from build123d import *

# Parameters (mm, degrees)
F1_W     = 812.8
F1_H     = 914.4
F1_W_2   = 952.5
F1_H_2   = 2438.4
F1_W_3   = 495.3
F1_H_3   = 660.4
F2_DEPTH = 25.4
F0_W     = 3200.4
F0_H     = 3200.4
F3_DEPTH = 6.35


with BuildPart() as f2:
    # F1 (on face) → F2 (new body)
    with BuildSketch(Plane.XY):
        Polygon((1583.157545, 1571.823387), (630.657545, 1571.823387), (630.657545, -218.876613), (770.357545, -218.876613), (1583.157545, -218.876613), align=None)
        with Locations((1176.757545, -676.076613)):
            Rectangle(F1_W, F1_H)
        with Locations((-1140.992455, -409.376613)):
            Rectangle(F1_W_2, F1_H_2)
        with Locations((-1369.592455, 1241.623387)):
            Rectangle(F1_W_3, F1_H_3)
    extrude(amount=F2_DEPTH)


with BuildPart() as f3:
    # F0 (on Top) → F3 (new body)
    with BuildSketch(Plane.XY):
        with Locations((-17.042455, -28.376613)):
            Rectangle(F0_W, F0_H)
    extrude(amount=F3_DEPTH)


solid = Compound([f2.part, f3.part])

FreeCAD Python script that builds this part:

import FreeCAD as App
import Part
import Sketcher
Q = App.Units.Quantity

doc = App.newDocument("Part")
body = doc.addObject("PartDesign::Body", "Body")
body.AllowCompound = True

# Sketch on XY plane
sketch1 = body.newObject("Sketcher::SketchObject", "Sketch")
sketch1.AttachmentSupport = (doc.getObject("XY_Plane"), [""])
sketch1.MapMode = "FlatFace"
sketch1.addGeometry([
    Part.LineSegment(App.Vector(1583, 1572, 0), App.Vector(631, 1572, 0)),  # 0
    Part.LineSegment(App.Vector(631, 1572, 0), App.Vector(631, -219, 0)),  # 1
    Part.LineSegment(App.Vector(631, -219, 0), App.Vector(770, -219, 0)),  # 2
    Part.LineSegment(App.Vector(770, -219, 0), App.Vector(770, -1133, 0)),  # 3
    Part.LineSegment(App.Vector(770, -1133, 0), App.Vector(1583, -1133, 0)),  # 4
    Part.LineSegment(App.Vector(1583, -1133, 0), App.Vector(1583, 1572, 0)),  # 5
    Part.LineSegment(App.Vector(-1617, 810, 0), App.Vector(-1617, -1629, 0)),  # 6
    Part.LineSegment(App.Vector(-1617, -1629, 0), App.Vector(-665, -1629, 0)),  # 7
    Part.LineSegment(App.Vector(-665, -1629, 0), App.Vector(-665, 810, 0)),  # 8
    Part.LineSegment(App.Vector(-665, 810, 0), App.Vector(-1617, 810, 0)),  # 9
    Part.LineSegment(App.Vector(-1617, 1572, 0), App.Vector(-1617, 911, 0)),  # 10
    Part.LineSegment(App.Vector(-1617, 911, 0), App.Vector(-1122, 911, 0)),  # 11
    Part.LineSegment(App.Vector(-1122, 911, 0), App.Vector(-1122, 1572, 0)),  # 12
    Part.LineSegment(App.Vector(-1122, 1572, 0), App.Vector(-1617, 1572, 0)),  # 13
], False)
sketch1.addConstraint([
    Sketcher.Constraint("Coincident", 0, 2, 1, 1),
    Sketcher.Constraint("Coincident", 1, 2, 2, 1),
    Sketcher.Constraint("Coincident", 2, 2, 3, 1),
    Sketcher.Constraint("Coincident", 3, 2, 4, 1),
    Sketcher.Constraint("Coincident", 4, 2, 5, 1),
    Sketcher.Constraint("Coincident", 5, 2, 0, 1),
    Sketcher.Constraint("Coincident", 6, 2, 7, 1),
    Sketcher.Constraint("Coincident", 7, 2, 8, 1),
    Sketcher.Constraint("Coincident", 8, 2, 9, 1),
    Sketcher.Constraint("Coincident", 9, 2, 6, 1),
    Sketcher.Constraint("Coincident", 10, 2, 11, 1),
    Sketcher.Constraint("Coincident", 11, 2, 12, 1),
    Sketcher.Constraint("Coincident", 12, 2, 13, 1),
    Sketcher.Constraint("Coincident", 13, 2, 10, 1),
    Sketcher.Constraint("Horizontal", 0),
    Sketcher.Constraint("Vertical", 1),
    Sketcher.Constraint("Horizontal", 2),
    Sketcher.Constraint("Vertical", 3),
    Sketcher.Constraint("Horizontal", 4),
    Sketcher.Constraint("Vertical", 5),
    Sketcher.Constraint("Vertical", 6),
    Sketcher.Constraint("Horizontal", 7),
    Sketcher.Constraint("Vertical", 8),
    Sketcher.Constraint("Horizontal", 9),
    Sketcher.Constraint("Vertical", 10),
    Sketcher.Constraint("Horizontal", 11),
    Sketcher.Constraint("Vertical", 12),
    Sketcher.Constraint("Horizontal", 13),
    Sketcher.Constraint("Horizontal", 5, 2, 12, 2),
    Sketcher.Constraint("Vertical", 9, 2, 10, 2),
    Sketcher.Constraint("Equal", 0, 7),
    Sketcher.Constraint("DistanceX", 4, 1, 4, 2, Q("32 in")),
    Sketcher.Constraint("DistanceY", 3, 2, 3, 1, Q("36 in")),
    Sketcher.Constraint("DistanceY", 6, 2, 6, 1, Q("96 in")),
    Sketcher.Constraint("DistanceY", 10, 2, 10, 1, Q("26 in")),
    Sketcher.Constraint("DistanceX", 0, 2, 0, 1, Q("37.5 in")),
    Sketcher.Constraint("DistanceX", 11, 1, 11, 2, Q("19.5 in")),
    Sketcher.Constraint("DistanceY", 1, 2, 1, 1, Q("70.5 in")),
    Sketcher.Constraint("DistanceX", 6, 2, 3, 2, Q("94 in")),
    Sketcher.Constraint("DistanceY", 6, 2, 0, 2, Q("126 in")),
    Sketcher.Constraint("DistanceX", -1, 1, 0, 2, Q("630.657545 mm")),
    Sketcher.Constraint("DistanceY", -1, 1, 0, 2, Q("1571.823387 mm")),
])
pad1 = body.newObject("PartDesign::Pad", "Pad")
pad1.Profile = sketch1
pad1.Length = Q("1 in")
body2 = doc.addObject("PartDesign::Body", "Body001")

# Sketch on XY plane
sketch2 = body2.newObject("Sketcher::SketchObject", "Sketch001")
sketch2.AttachmentSupport = (doc.getObject("XY_Plane001"), [""])
sketch2.MapMode = "FlatFace"
sketch2.addGeometry([
    Part.LineSegment(App.Vector(-1617, 1572, 0), App.Vector(-1617, -1629, 0)),
    Part.LineSegment(App.Vector(-1617, -1629, 0), App.Vector(1583, -1629, 0)),
    Part.LineSegment(App.Vector(1583, -1629, 0), App.Vector(1583, 1572, 0)),
    Part.LineSegment(App.Vector(1583, 1572, 0), App.Vector(-1617, 1572, 0)),
], False)
sketch2.addConstraint([
    Sketcher.Constraint("Coincident", 0, 2, 1, 1),
    Sketcher.Constraint("Coincident", 1, 2, 2, 1),
    Sketcher.Constraint("Coincident", 2, 2, 3, 1),
    Sketcher.Constraint("Coincident", 3, 2, 0, 1),
    Sketcher.Constraint("Vertical", 0),
    Sketcher.Constraint("Horizontal", 1),
    Sketcher.Constraint("Vertical", 2),
    Sketcher.Constraint("Horizontal", 3),
    Sketcher.Constraint("Equal", 3, 0),
    Sketcher.Constraint("DistanceX", 1, 1, 1, 2, Q("126 in")),
    Sketcher.Constraint("DistanceX", 0, 2, -1, 1, Q("1617.242455 mm")),
    Sketcher.Constraint("DistanceY", 0, 2, -1, 1, Q("1628.576613 mm")),
])
pad2 = body2.newObject("PartDesign::Pad", "Pad001")
pad2.Profile = sketch2
pad2.Length = Q("0.25 in")

doc.recompute()
